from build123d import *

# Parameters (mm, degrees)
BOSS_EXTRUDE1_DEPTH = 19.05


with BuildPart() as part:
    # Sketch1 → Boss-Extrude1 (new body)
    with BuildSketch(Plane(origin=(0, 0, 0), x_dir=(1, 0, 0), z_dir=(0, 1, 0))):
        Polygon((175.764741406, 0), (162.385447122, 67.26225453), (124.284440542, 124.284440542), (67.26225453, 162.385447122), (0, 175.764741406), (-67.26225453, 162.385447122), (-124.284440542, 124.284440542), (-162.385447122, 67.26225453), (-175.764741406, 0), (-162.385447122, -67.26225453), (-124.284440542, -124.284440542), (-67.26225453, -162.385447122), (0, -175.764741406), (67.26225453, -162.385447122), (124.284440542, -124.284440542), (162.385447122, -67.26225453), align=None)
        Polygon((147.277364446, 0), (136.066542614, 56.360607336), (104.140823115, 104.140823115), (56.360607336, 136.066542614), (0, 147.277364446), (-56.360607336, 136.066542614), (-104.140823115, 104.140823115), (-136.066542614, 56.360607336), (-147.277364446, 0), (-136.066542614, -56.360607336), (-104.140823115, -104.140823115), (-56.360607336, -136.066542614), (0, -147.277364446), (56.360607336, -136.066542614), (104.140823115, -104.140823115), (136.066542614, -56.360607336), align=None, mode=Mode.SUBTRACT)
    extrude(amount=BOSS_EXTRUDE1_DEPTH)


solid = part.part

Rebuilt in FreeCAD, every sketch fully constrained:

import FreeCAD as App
import Part
import Sketcher
Q = App.Units.Quantity


def add_polygon(sketch, points):
    """Adds a closed chain of lines whose ends are joined by coincident constraints."""
    first, n = sketch.GeometryCount, len(points)
    for a, b in zip(points, points[1:] + points[:1]):
        sketch.addGeometry(Part.LineSegment(App.Vector(*a, 0), App.Vector(*b, 0)), False)
    for i in range(n):
        sketch.addConstraint(Sketcher.Constraint("Coincident", first + i, 2, first + (i + 1) % n, 1))

doc = App.newDocument("Part")
body = doc.addObject("PartDesign::Body", "Body")

# Sketch on XZ plane
sketch1 = doc.addObject("Sketcher::SketchObject", "Sketch")
body.addObject(sketch1)
sketch1.AttachmentSupport = (doc.XZ_Plane, [""])
sketch1.MapMode = "FlatFace"
add_polygon(sketch1, [(176, 0), (162, -67), (124, -124), (67, -162), (0, -176), (-67, -162), (-124, -124), (-162, -67), (-176, 0), (-162, 67), (-124, 124), (-67, 162), (0, 176), (67, 162), (124, 124), (162, 67)])  # lines 0-15
add_polygon(sketch1, [(136, -56), (147, 0), (136, 56), (104, 104), (56, 136), (0, 147), (-56, 136), (-104, 104), (-136, 56), (-147, 0), (-136, -56), (-104, -104), (-56, -136), (0, -147), (56, -136), (104, -104)])  # lines 16-31
sketch1.addConstraint(Sketcher.Constraint("Symmetric", 0, 2, 8, 2, -1, 1))
sketch1.addConstraint(Sketcher.Constraint("Symmetric", 1, 2, 9, 2, -1, 1))
sketch1.addConstraint(Sketcher.Constraint("Symmetric", 2, 2, 10, 2, -1, 1))
sketch1.addConstraint(Sketcher.Constraint("Symmetric", 3, 2, 11, 2, -1, 1))
sketch1.addConstraint(Sketcher.Constraint("Symmetric", 4, 2, 12, 2, -1, 1))
sketch1.addConstraint(Sketcher.Constraint("Symmetric", 5, 2, 13, 2, -1, 1))
sketch1.addConstraint(Sketcher.Constraint("Symmetric", 6, 2, 14, 2, -1, 1))
sketch1.addConstraint(Sketcher.Constraint("Symmetric", 7, 2, 15, 2, -1, 1))
sketch1.addConstraint(Sketcher.Constraint("Symmetric", 16, 2, 24, 2, -1, 1))
sketch1.addConstraint(Sketcher.Constraint("Symmetric", 17, 2, 25, 2, -1, 1))
sketch1.addConstraint(Sketcher.Constraint("Symmetric", 18, 2, 26, 2, -1, 1))
sketch1.addConstraint(Sketcher.Constraint("Symmetric", 19, 2, 27, 2, -1, 1))
sketch1.addConstraint(Sketcher.Constraint("Symmetric", 20, 2, 28, 2, -1, 1))
sketch1.addConstraint(Sketcher.Constraint("Symmetric", 21, 2, 29, 2, -1, 1))
sketch1.addConstraint(Sketcher.Constraint("Symmetric", 22, 2, 30, 2, -1, 1))
sketch1.addConstraint(Sketcher.Constraint("Symmetric", 23, 2, 31, 2, -1, 1))
sketch1.addConstraint(Sketcher.Constraint("Symmetric", 2, 2, 4, 2, -2))
sketch1.addConstraint(Sketcher.Constraint("Symmetric", 1, 2, 5, 2, -2))
sketch1.addConstraint(Sketcher.Constraint("Symmetric", 0, 2, 6, 2, -2))
sketch1.addConstraint(Sketcher.Constraint("Symmetric", 19, 2, 21, 2, -2))
sketch1.addConstraint(Sketcher.Constraint("Symmetric", 18, 2, 22, 2, -2))
sketch1.addConstraint(Sketcher.Constraint("Symmetric", 17, 2, 23, 2, -2))
sketch1.addConstraint(Sketcher.Constraint("PointOnObject", 3, 2, -2))
sketch1.addConstraint(Sketcher.Constraint("PointOnObject", 7, 2, -1))
sketch1.addConstraint(Sketcher.Constraint("PointOnObject", 16, 2, -1))
sketch1.addConstraint(Sketcher.Constraint("PointOnObject", 20, 2, -2))
sketch1.addConstraint(Sketcher.Constraint("Perpendicular", 0, 4))
sketch1.addConstraint(Sketcher.Constraint("Perpendicular", 1, 5))
sketch1.addConstraint(Sketcher.Constraint("Perpendicular", 12, 16))
sketch1.addConstraint(Sketcher.Constraint("Parallel", 14, 18))
sketch1.addConstraint(Sketcher.Constraint("Parallel", 13, 19))
sketch1.addConstraint(Sketcher.Constraint("Perpendicular", 16, 20))
sketch1.addConstraint(Sketcher.Constraint("Equal", 0, 1))
sketch1.addConstraint(Sketcher.Constraint("Equal", 1, 2))
sketch1.addConstraint(Sketcher.Constraint("Equal", 2, 3))
sketch1.addConstraint(Sketcher.Constraint("Equal", 17, 18))
sketch1.addConstraint(Sketcher.Constraint("Equal", 18, 19))
sketch1.addConstraint(Sketcher.Constraint("Equal", 19, 20))
sketch1.addConstraint(Sketcher.Constraint("Distance", 0, Q("2.7 in")))
sketch1.addConstraint(Sketcher.Constraint("Angle", 0, Q("-101.25 deg")))
sketch1.addConstraint(Sketcher.Constraint("Angle", 1, Q("-123.75 deg")))
sketch1.addConstraint(Sketcher.Constraint("DistanceX", 17, 2, 15, 2, Q("39.698199 mm")))
pad1 = doc.addObject("PartDesign::Pad", "Pad")
body.addObject(pad1)
pad1.Profile = sketch1
pad1.Length = Q("0.75 in")
pad1.Reversed = True

doc.recompute()
